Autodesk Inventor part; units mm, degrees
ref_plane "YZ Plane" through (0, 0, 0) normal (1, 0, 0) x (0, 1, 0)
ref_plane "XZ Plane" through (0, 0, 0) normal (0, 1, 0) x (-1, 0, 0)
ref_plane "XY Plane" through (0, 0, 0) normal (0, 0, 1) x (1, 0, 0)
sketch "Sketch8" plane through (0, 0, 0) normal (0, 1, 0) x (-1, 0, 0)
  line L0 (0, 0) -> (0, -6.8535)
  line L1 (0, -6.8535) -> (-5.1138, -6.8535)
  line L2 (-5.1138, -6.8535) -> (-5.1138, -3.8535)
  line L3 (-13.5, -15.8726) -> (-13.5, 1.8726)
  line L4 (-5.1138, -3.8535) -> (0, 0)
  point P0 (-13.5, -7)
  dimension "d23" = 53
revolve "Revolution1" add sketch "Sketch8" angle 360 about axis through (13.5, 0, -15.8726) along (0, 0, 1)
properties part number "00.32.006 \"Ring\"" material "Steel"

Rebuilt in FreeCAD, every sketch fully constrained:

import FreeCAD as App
import Part
import Sketcher
from FreeCAD import Vector
Q = App.Units.Quantity


def add_polygon(sketch, points):
    """Adds a closed chain of lines whose ends are joined by coincident constraints."""
    first, n = sketch.GeometryCount, len(points)
    for a, b in zip(points, points[1:] + points[:1]):
        sketch.addGeometry(Part.LineSegment(App.Vector(*a, 0), App.Vector(*b, 0)), False)
    for i in range(n):
        sketch.addConstraint(Sketcher.Constraint("Coincident", first + i, 2, first + (i + 1) % n, 1))

doc = App.newDocument("Part")
body = doc.addObject("PartDesign::Body", "Body")

sketch1 = body.newObject("Sketcher::SketchObject", "Sketch")
sketch1.AttachmentSupport = (doc.getObject("XZ_Plane"), [""])
sketch1.MapMode = "FlatFace"
add_polygon(sketch1, [(0, -6.9), (0, 0), (5.1, -3.9), (5.1, -6.9)])
sketch1.addGeometry(Part.LineSegment(Vector(13.5, -6.9, 0), Vector(13.5, 0, 0)), True)
sketch1.addConstraint([
    Sketcher.Constraint("Vertical", 0),
    Sketcher.Constraint("Vertical", 2),
    Sketcher.Constraint("Horizontal", 3),
    Sketcher.Constraint("Vertical", 4),
    Sketcher.Constraint("Coincident", 0, 2, -1, 1),
    Sketcher.Constraint("PointOnObject", 4, 2, -1),
    Sketcher.Constraint("Horizontal", 3, 2, 4, 1),
    Sketcher.Constraint("DistanceY", 2, 2, 2, 1, 3.0),
    Sketcher.Constraint("Angle", 1, Q("-36.9998 deg")),
    Sketcher.Constraint("DistanceX", -1, 1, 4, 1, 13.5),
    Sketcher.Constraint("DistanceX", 3, 2, 3, 1, 5.1138),
])
revolution = body.newObject("PartDesign::Revolution", "Revolution")
revolution.Profile = sketch1
revolution.ReferenceAxis = (sketch1, ["Axis0"])
revolution.Angle = 360

doc.recompute()
